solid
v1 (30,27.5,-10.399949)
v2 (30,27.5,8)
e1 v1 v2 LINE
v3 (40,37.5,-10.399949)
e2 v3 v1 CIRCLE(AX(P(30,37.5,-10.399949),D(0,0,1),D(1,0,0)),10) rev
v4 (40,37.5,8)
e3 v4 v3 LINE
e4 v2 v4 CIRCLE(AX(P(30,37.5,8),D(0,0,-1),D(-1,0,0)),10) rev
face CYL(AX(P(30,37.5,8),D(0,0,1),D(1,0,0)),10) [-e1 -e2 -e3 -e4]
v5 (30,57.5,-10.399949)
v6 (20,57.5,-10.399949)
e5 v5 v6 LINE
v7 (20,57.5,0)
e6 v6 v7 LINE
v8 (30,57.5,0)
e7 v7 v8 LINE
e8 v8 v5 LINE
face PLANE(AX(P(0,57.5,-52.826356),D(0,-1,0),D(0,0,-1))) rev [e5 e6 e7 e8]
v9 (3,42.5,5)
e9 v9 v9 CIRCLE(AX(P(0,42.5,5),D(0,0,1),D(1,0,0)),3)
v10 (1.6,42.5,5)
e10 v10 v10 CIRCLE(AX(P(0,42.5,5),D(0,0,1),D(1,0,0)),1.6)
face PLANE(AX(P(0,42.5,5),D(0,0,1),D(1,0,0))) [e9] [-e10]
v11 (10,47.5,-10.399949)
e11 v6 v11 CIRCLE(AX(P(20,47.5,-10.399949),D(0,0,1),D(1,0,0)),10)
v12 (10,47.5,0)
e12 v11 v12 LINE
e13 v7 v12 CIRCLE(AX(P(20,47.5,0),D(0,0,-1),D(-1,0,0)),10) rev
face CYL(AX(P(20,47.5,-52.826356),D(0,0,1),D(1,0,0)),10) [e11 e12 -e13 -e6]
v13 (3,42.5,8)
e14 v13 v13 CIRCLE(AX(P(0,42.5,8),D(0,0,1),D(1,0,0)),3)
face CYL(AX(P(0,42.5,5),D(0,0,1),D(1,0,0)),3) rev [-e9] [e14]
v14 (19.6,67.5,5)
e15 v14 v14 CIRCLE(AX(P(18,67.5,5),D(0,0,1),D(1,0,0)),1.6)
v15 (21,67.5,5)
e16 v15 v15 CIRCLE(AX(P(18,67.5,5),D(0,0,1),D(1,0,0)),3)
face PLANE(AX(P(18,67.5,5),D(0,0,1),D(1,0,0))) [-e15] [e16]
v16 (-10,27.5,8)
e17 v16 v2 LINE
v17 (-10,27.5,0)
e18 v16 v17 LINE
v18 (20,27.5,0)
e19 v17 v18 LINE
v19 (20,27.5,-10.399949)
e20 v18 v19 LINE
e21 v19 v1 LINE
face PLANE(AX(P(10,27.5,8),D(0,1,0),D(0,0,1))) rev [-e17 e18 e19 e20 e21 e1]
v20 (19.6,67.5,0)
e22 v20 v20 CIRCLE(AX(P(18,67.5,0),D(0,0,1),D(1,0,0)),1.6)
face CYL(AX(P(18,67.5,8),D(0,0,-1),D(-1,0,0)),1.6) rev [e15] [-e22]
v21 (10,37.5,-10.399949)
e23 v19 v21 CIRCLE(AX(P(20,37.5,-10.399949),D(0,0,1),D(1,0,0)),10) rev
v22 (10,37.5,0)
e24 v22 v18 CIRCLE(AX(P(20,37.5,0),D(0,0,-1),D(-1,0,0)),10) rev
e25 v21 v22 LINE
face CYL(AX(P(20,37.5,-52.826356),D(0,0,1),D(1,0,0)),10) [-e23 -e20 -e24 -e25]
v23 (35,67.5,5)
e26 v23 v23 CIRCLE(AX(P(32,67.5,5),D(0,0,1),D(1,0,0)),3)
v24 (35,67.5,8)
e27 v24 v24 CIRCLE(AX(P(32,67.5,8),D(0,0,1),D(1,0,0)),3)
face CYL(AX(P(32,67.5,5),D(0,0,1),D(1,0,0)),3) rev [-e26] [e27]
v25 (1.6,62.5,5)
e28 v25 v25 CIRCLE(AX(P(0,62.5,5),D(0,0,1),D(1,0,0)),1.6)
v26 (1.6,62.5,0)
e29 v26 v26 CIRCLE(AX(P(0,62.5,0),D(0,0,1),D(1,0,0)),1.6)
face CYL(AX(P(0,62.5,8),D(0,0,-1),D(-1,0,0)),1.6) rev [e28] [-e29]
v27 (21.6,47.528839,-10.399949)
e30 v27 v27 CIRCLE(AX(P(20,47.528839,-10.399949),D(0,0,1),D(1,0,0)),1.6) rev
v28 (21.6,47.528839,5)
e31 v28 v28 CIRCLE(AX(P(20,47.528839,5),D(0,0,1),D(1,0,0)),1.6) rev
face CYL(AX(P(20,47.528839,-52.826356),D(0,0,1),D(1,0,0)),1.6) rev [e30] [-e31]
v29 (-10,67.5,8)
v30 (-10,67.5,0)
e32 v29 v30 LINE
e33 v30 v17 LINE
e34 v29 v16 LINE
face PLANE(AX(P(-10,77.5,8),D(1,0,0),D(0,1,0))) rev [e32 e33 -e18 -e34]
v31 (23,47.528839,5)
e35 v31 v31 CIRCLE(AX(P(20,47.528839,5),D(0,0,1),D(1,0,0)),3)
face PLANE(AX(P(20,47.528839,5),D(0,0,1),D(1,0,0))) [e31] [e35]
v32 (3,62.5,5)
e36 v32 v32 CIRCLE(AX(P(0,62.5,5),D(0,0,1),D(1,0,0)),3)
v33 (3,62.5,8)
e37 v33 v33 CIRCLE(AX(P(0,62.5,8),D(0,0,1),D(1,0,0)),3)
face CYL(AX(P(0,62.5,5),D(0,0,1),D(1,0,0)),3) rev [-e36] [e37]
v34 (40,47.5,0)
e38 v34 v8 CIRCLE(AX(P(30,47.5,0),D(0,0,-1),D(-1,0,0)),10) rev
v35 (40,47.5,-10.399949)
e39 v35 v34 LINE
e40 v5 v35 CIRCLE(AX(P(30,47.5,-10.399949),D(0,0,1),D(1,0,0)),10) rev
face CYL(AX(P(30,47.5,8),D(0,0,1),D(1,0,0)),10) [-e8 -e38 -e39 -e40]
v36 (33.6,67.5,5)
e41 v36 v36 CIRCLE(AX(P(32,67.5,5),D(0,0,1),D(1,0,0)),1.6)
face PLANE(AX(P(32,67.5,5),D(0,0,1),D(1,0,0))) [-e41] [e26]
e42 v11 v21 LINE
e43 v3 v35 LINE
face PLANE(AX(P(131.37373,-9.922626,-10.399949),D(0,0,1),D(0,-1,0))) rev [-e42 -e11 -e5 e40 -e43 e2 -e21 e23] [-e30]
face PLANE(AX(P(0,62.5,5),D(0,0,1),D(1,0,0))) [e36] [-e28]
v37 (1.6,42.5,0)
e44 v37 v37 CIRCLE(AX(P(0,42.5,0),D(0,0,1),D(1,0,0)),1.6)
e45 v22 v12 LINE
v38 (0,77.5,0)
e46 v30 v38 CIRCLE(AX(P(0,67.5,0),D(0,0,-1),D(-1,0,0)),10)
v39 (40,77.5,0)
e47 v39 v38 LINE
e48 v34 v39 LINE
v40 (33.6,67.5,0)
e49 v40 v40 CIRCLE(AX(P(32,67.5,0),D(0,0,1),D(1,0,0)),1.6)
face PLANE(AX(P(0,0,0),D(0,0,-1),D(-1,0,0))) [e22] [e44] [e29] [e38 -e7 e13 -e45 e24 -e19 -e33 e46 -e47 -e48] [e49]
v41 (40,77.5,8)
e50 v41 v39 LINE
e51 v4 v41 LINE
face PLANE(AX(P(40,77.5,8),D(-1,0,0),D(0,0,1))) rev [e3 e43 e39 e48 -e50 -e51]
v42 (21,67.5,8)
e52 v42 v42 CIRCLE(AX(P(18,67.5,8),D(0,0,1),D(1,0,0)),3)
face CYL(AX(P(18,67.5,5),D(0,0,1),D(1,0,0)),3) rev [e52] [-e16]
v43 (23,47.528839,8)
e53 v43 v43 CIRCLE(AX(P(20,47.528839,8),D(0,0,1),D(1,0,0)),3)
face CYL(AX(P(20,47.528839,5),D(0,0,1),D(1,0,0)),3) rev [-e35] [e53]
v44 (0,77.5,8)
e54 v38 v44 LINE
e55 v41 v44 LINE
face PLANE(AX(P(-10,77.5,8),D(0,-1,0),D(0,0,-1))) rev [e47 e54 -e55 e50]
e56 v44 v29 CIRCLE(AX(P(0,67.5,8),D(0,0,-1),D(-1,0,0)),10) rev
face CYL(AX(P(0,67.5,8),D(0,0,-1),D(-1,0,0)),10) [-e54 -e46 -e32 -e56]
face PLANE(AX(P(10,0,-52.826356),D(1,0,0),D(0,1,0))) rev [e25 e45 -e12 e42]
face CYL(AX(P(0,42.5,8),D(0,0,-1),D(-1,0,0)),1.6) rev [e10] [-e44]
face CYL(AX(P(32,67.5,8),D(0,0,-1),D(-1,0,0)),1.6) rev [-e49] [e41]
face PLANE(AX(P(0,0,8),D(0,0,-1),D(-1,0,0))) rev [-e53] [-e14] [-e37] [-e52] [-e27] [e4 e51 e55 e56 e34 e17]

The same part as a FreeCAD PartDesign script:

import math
import FreeCAD as App
import Part
import Sketcher
Q = App.Units.Quantity


def edges_at(feature, points):
    """Names of the edges that pass closest to the given points."""
    edges = feature.Shape.Edges
    near = lambda p: min(range(len(edges)), key=lambda i: edges[i].distToShape(Part.Vertex(*p))[0])
    return sorted({f"Edge{near(p) + 1}" for p in points})


def add_polygon(sketch, points):
    """Adds a closed chain of lines whose ends are joined by coincident constraints."""
    first, n = sketch.GeometryCount, len(points)
    for a, b in zip(points, points[1:] + points[:1]):
        sketch.addGeometry(Part.LineSegment(App.Vector(*a, 0), App.Vector(*b, 0)), False)
    for i in range(n):
        sketch.addConstraint(Sketcher.Constraint("Coincident", first + i, 2, first + (i + 1) % n, 1))

doc = App.newDocument("Part")
body = doc.addObject("PartDesign::Body", "Body")

# Sketch on XY plane
sketch1 = doc.addObject("Sketcher::SketchObject", "Sketch")
body.addObject(sketch1)
sketch1.AttachmentSupport = (doc.XY_Plane, [""])
sketch1.MapMode = "FlatFace"
add_polygon(sketch1, [(10, 27.5), (10, 57.5), (40, 57.5), (40, 77.5), (-10, 77.5), (-10, 27.5)])  # lines 0-5
sketch1.addGeometry(Part.Circle(App.Vector(0, 42.5, 0), App.Vector(0, 0, 1), 1.6), False)  # 6
sketch1.addGeometry(Part.Circle(App.Vector(32, 67.5, 0), App.Vector(0, 0, 1), 1.6), False)  # 7
sketch1.addGeometry(Part.Circle(App.Vector(18, 67.5, 0), App.Vector(0, 0, 1), 1.6), False)  # 8
sketch1.addGeometry(Part.Circle(App.Vector(0, 62.5, 0), App.Vector(0, 0, 1), 1.6), False)  # 9
sketch1.addConstraint([
    Sketcher.Constraint("Vertical", 0),
    Sketcher.Constraint("Horizontal", 1),
    Sketcher.Constraint("Vertical", 2),
    Sketcher.Constraint("Horizontal", 3),
    Sketcher.Constraint("Vertical", 4),
    Sketcher.Constraint("Horizontal", 5),
    Sketcher.Constraint("Equal", 6, 7),
    Sketcher.Constraint("Equal", 7, 8),
    Sketcher.Constraint("Equal", 8, 9),
    Sketcher.Constraint("PointOnObject", 6, 3, -2),
    Sketcher.Constraint("PointOnObject", 9, 3, -2),
    Sketcher.Constraint("Horizontal", 7, 3, 8, 3),
    Sketcher.Constraint("Equal", 1, 0),
    Sketcher.Constraint("Equal", 5, 2),
    Sketcher.Constraint("Diameter", 6, Q("3.2 mm")),
    Sketcher.Constraint("DistanceX", 1, 1, 1, 2, Q("30 mm")),
    Sketcher.Constraint("DistanceX", 3, 2, 3, 1, Q("50 mm")),
    Sketcher.Constraint("DistanceX", -1, 1, 7, 3, Q("32 mm")),
    Sketcher.Constraint("DistanceX", -1, 1, 8, 3, Q("18 mm")),
    Sketcher.Constraint("DistanceX", -1, 1, 0, 2, Q("10 mm")),
    Sketcher.Constraint("DistanceY", 6, 3, 7, 3, Q("25 mm")),
    Sketcher.Constraint("DistanceY", 9, 3, 8, 3, Q("5 mm")),
    Sketcher.Constraint("DistanceY", 0, 2, 9, 3, Q("5 mm")),
    Sketcher.Constraint("DistanceY", -1, 1, 6, 3, Q("42.5 mm")),
])
pad1 = doc.addObject("PartDesign::Pad", "Pad")
body.addObject(pad1)
pad1.Profile = sketch1
pad1.Length = 8

# Sketch on XY plane
sketch2 = doc.addObject("Sketcher::SketchObject", "Sketch001")
body.addObject(sketch2)
sketch2.AttachmentSupport = (doc.XY_Plane, [""])
sketch2.MapMode = "FlatFace"
sketch2.AttachmentOffset = App.Placement(App.Vector(0, 0, 8), App.Rotation())
sketch2.addGeometry([
    Part.Circle(App.Vector(32, 67.5, 0), App.Vector(0, 0, 1), 3),
    Part.Circle(App.Vector(18, 67.5, 0), App.Vector(0, 0, 1), 3),
    Part.Circle(App.Vector(0, 62.5, 0), App.Vector(0, 0, 1), 3),
    Part.Circle(App.Vector(0, 42.5, 0), App.Vector(0, 0, 1), 3),
], False)
sketch2.addConstraint([
    Sketcher.Constraint("Equal", 0, 1),
    Sketcher.Constraint("Equal", 1, 2),
    Sketcher.Constraint("Equal", 2, 3),
    Sketcher.Constraint("PointOnObject", 2, 3, -2),
    Sketcher.Constraint("PointOnObject", 3, 3, -2),
    Sketcher.Constraint("Horizontal", 0, 3, 1, 3),
    Sketcher.Constraint("Diameter", 0, Q("6 mm")),
    Sketcher.Constraint("DistanceX", -1, 1, 0, 3, Q("32 mm")),
    Sketcher.Constraint("DistanceX", -1, 1, 1, 3, Q("18 mm")),
    Sketcher.Constraint("DistanceY", 2, 3, 1, 3, Q("5 mm")),
    Sketcher.Constraint("DistanceY", 3, 3, 2, 3, Q("20 mm")),
    Sketcher.Constraint("DistanceY", -1, 1, 0, 3, Q("67.5 mm")),
])
pocket1 = doc.addObject("PartDesign::Pocket", "Pocket")
body.addObject(pocket1)
pocket1.Profile = sketch2
pocket1.Length = 3
doc.recompute()

fillet = doc.addObject("PartDesign::Fillet", "Fillet")
body.addObject(fillet)
fillet.Base = (pocket1, edges_at(pocket1, [(-10, 77.5, 4), (10, 57.5, 4)]))
fillet.Radius = 10

# Sketch on XY plane
sketch3 = doc.addObject("Sketcher::SketchObject", "Sketch002")
body.addObject(sketch3)
sketch3.AttachmentSupport = (doc.XY_Plane, [""])
sketch3.MapMode = "FlatFace"
sketch3.AttachmentOffset = App.Placement(App.Vector(0, 0, -10.399949), App.Rotation())
sketch3.addGeometry([
    Part.LineSegment(App.Vector(40, 27.5, 0), App.Vector(40, 57.5, 0)),  # 0
    Part.LineSegment(App.Vector(40, 57.5, 0), App.Vector(20, 57.5, 0)),  # 1
    Part.ArcOfCircle(Part.Circle(App.Vector(20, 47.5, 0), App.Vector(0, 0, 1), 10), math.radians(90), math.radians(179.834765)),  # 2
    Part.ArcOfCircle(Part.Circle(App.Vector(20.000047, 47.5, 0), App.Vector(0, 0, 1), 10.000047), math.radians(179.834766), math.radians(180)),  # 3
    Part.LineSegment(App.Vector(10, 47.5, 0), App.Vector(10, 27.5, 0)),  # 4
    Part.LineSegment(App.Vector(10, 27.5, 0), App.Vector(40, 27.5, 0)),  # 5
    Part.Circle(App.Vector(20, 47.528839, 0), App.Vector(0, 0, 1), 1.6),  # 6
], False)
sketch3.addConstraint([
    Sketcher.Constraint("Coincident", 0, 2, 1, 1),
    Sketcher.Constraint("Tangent", 1, 2, 2, 1),
    Sketcher.Constraint("Tangent", 2, 2, 3, 1),
    Sketcher.Constraint("Tangent", 3, 2, 4, 1),
    Sketcher.Constraint("Coincident", 4, 2, 5, 1),
    Sketcher.Constraint("Coincident", 5, 2, 0, 1),
    Sketcher.Constraint("Vertical", 0),
    Sketcher.Constraint("Horizontal", 1),
    Sketcher.Constraint("Vertical", 4),
    Sketcher.Constraint("Horizontal", 5),
    Sketcher.Constraint("Horizontal", 6, 3, 2, 2),
    Sketcher.Constraint("Vertical", 2, 3, 6, 3),
    Sketcher.Constraint("Equal", 5, 0),
    Sketcher.Constraint("Radius", 2, Q("10 mm")),
    Sketcher.Constraint("Diameter", 6, Q("3.2 mm")),
    Sketcher.Constraint("DistanceX", 1, 2, 1, 1, Q("20 mm")),
    Sketcher.Constraint("DistanceX", -1, 1, 2, 3, Q("20 mm")),
    Sketcher.Constraint("DistanceY", -1, 1, 2, 3, Q("47.5 mm")),
    Sketcher.Constraint("DistanceY", -1, 1, 3, 3, Q("47.5 mm")),
    Sketcher.Constraint("DistanceY", -1, 1, 6, 3, Q("47.528839 mm")),
])
pad2 = doc.addObject("PartDesign::Pad", "Pad001")
body.addObject(pad2)
pad2.Profile = sketch3
pad2.Length = 18.399949

# Sketch on XY plane
sketch4 = doc.addObject("Sketcher::SketchObject", "Sketch003")
body.addObject(sketch4)
sketch4.AttachmentSupport = (doc.XY_Plane, [""])
sketch4.MapMode = "FlatFace"
sketch4.AttachmentOffset = App.Placement(App.Vector(0, 0, 8), App.Rotation())
sketch4.addGeometry(Part.Circle(App.Vector(20, 47.5, 0), App.Vector(0, 0, 1), 3), False)
sketch4.addConstraint([
    Sketcher.Constraint("Diameter", 0, Q("6 mm")),
    Sketcher.Constraint("DistanceX", -1, 1, 0, 3, Q("20 mm")),
    Sketcher.Constraint("DistanceY", -1, 1, 0, 3, Q("47.528839 mm")),
])
pocket2 = doc.addObject("PartDesign::Pocket", "Pocket001")
body.addObject(pocket2)
pocket2.Profile = sketch4
pocket2.Length = 3
doc.recompute()

fillet2 = doc.addObject("PartDesign::Fillet", "Fillet001")
body.addObject(fillet2)
fillet2.Base = (pocket2, edges_at(pocket2, [(40, 57.5, -5.2), (10, 27.5, -5.2), (40, 27.5, -1.2)]))
fillet2.Radius = 10

doc.recompute()
